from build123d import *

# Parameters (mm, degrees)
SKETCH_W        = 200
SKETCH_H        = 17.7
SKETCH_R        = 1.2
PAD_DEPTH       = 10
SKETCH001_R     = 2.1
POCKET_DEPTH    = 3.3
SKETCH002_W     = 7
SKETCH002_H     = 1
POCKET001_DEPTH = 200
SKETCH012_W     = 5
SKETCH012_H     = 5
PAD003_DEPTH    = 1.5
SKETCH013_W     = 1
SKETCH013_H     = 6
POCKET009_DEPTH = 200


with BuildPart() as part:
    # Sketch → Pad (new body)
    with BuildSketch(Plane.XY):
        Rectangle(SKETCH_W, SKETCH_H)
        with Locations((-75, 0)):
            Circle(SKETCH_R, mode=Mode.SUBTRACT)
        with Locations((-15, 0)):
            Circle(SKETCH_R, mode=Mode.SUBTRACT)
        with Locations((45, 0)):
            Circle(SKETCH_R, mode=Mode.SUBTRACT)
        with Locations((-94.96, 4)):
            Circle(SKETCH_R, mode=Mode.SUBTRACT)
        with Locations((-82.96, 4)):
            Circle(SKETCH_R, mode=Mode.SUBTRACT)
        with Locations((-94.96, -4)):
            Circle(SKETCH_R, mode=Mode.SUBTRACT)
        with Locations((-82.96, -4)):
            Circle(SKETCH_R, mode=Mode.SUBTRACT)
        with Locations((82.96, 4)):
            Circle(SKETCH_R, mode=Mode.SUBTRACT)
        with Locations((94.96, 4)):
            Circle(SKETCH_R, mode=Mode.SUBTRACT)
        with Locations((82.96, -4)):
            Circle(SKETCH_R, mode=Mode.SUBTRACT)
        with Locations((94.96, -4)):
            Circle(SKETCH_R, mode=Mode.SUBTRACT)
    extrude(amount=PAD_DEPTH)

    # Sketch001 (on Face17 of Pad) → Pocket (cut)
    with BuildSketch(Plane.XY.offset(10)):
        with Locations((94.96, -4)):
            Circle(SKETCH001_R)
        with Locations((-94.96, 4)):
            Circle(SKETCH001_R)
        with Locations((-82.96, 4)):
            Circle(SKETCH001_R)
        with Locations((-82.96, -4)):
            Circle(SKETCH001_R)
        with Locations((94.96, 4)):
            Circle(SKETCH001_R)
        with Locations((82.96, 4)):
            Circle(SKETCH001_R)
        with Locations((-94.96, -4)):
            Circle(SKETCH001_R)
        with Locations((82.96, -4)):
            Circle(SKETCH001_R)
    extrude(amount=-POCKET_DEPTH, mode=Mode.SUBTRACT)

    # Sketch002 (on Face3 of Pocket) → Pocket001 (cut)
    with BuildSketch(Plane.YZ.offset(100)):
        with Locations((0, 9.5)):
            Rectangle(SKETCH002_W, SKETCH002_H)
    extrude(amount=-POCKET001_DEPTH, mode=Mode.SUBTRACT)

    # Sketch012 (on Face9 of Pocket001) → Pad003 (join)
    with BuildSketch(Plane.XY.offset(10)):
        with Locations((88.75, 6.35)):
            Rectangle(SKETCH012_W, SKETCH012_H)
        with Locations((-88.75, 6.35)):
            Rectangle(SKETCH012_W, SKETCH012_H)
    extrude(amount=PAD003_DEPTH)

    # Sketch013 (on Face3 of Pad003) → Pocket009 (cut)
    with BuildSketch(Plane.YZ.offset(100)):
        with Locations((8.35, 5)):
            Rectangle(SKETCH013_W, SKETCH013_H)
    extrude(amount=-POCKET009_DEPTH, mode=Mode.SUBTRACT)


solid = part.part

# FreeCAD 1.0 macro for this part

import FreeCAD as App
import Part
import Sketcher
Q = App.Units.Quantity

doc = App.newDocument("Part")
body = doc.addObject("PartDesign::Body", "Body")

# Sketch on XY plane
sketch1 = body.newObject("Sketcher::SketchObject", "Sketch")
sketch1.AttachmentSupport = (doc.getObject("XY_Plane"), [""])
sketch1.MapMode = "FlatFace"
sketch1.addGeometry(Part.LineSegment(App.Vector(-100, 8.8, 0), App.Vector(-100, -8.8, 0)), False)
sketch1.addGeometry(Part.LineSegment(App.Vector(-100, -8.8, 0), App.Vector(100, -8.8, 0)), False)
sketch1.addGeometry(Part.LineSegment(App.Vector(100, -8.8, 0), App.Vector(100, 8.8, 0)), False)
sketch1.addGeometry(Part.LineSegment(App.Vector(100, 8.8, 0), App.Vector(-100, 8.8, 0)), False)
sketch1.addGeometry(Part.Circle(App.Vector(-95, -4, 0), App.Vector(0, 0, 1), 1.2), False)
sketch1.addGeometry(Part.Circle(App.Vector(-83, -4, 0), App.Vector(0, 0, 1), 1.2), False)
sketch1.addGeometry(Part.Circle(App.Vector(83, -4, 0), App.Vector(0, 0, 1), 1.2), False)
sketch1.addGeometry(Part.Circle(App.Vector(95, -4, 0), App.Vector(0, 0, 1), 1.2), False)
sketch1.addGeometry(Part.Circle(App.Vector(-75, 0, 0), App.Vector(0, 0, 1), 1.2), False)
sketch1.addGeometry(Part.Circle(App.Vector(-15, 0, 0), App.Vector(0, 0, 1), 1.2), False)
sketch1.addGeometry(Part.Circle(App.Vector(-95, 4, 0), App.Vector(0, 0, 1), 1.2), False)
sketch1.addGeometry(Part.Circle(App.Vector(-83, 4, 0), App.Vector(0, 0, 1), 1.2), False)
sketch1.addGeometry(Part.Circle(App.Vector(45, 0, 0), App.Vector(0, 0, 1), 1.2), False)
sketch1.addGeometry(Part.Circle(App.Vector(83, 4, 0), App.Vector(0, 0, 1), 1.2), False)
sketch1.addGeometry(Part.Circle(App.Vector(95, 4, 0), App.Vector(0, 0, 1), 1.2), False)
sketch1.addConstraint(Sketcher.Constraint("Coincident", 0, 2, 1, 1))
sketch1.addConstraint(Sketcher.Constraint("Coincident", 1, 2, 2, 1))
sketch1.addConstraint(Sketcher.Constraint("Coincident", 2, 2, 3, 1))
sketch1.addConstraint(Sketcher.Constraint("Coincident", 3, 2, 0, 1))
sketch1.addConstraint(Sketcher.Constraint("Vertical", 0))
sketch1.addConstraint(Sketcher.Constraint("Horizontal", 1))
sketch1.addConstraint(Sketcher.Constraint("Vertical", 2))
sketch1.addConstraint(Sketcher.Constraint("Horizontal", 3))
sketch1.addConstraint(Sketcher.Constraint("Equal", 4, 5))
sketch1.addConstraint(Sketcher.Constraint("Equal", 5, 6))
sketch1.addConstraint(Sketcher.Constraint("Equal", 6, 7))
sketch1.addConstraint(Sketcher.Constraint("Equal", 7, 8))
sketch1.addConstraint(Sketcher.Constraint("Equal", 8, 9))
sketch1.addConstraint(Sketcher.Constraint("Equal", 9, 10))
sketch1.addConstraint(Sketcher.Constraint("Equal", 10, 11))
sketch1.addConstraint(Sketcher.Constraint("Equal", 11, 12))
sketch1.addConstraint(Sketcher.Constraint("Equal", 12, 13))
sketch1.addConstraint(Sketcher.Constraint("Equal", 13, 14))
sketch1.addConstraint(Sketcher.Constraint("Symmetric", 7, 3, 10, 3, -1, 1))
sketch1.addConstraint(Sketcher.Constraint("Symmetric", 6, 3, 11, 3, -1, 1))
sketch1.addConstraint(Sketcher.Constraint("Symmetric", 5, 3, 13, 3, -1, 1))
sketch1.addConstraint(Sketcher.Constraint("Symmetric", 4, 3, 14, 3, -1, 1))
sketch1.addConstraint(Sketcher.Constraint("Symmetric", 0, 2, 2, 2, -1, 1))
sketch1.addConstraint(Sketcher.Constraint("Symmetric", 5, 3, 6, 3, -2))
sketch1.addConstraint(Sketcher.Constraint("Symmetric", 4, 3, 7, 3, -2))
sketch1.addConstraint(Sketcher.Constraint("PointOnObject", 8, 3, -1))
sketch1.addConstraint(Sketcher.Constraint("PointOnObject", 9, 3, -1))
sketch1.addConstraint(Sketcher.Constraint("PointOnObject", 12, 3, -1))
sketch1.addConstraint(Sketcher.Constraint("Horizontal", 4, 3, 5, 3))
sketch1.addConstraint(Sketcher.Constraint("Diameter", 4, Q("2.4 mm")))
sketch1.addConstraint(Sketcher.Constraint("DistanceX", 1, 1, 1, 2, Q("200 mm")))
sketch1.addConstraint(Sketcher.Constraint("DistanceY", 0, 2, 0, 1, Q("17.7 mm")))
sketch1.addConstraint(Sketcher.Constraint("DistanceY", 4, 3, -1, 1, Q("4 mm")))
sketch1.addConstraint(Sketcher.Constraint("DistanceX", 8, 3, -1, 1, Q("75 mm")))
sketch1.addConstraint(Sketcher.Constraint("DistanceX", 9, 3, -1, 1, Q("15 mm")))
sketch1.addConstraint(Sketcher.Constraint("DistanceX", -1, 1, 12, 3, Q("45 mm")))
sketch1.addConstraint(Sketcher.Constraint("DistanceX", 4, 3, 5, 3, Q("12 mm")))
sketch1.addConstraint(Sketcher.Constraint("DistanceX", 4, 3, -1, 1, Q("94.96 mm")))
pad1 = body.newObject("PartDesign::Pad", "Pad")
pad1.Profile = sketch1
pad1.Length = 10

# Sketch on XY plane
sketch2 = body.newObject("Sketcher::SketchObject", "Sketch001")
sketch2.AttachmentSupport = (doc.getObject("XY_Plane"), [""])
sketch2.MapMode = "FlatFace"
sketch2.AttachmentOffset = App.Placement(App.Vector(0, 0, 10), App.Rotation())
sketch2.addGeometry(Part.Circle(App.Vector(95, -4, 0), App.Vector(0, 0, 1), 2.1), False)
sketch2.addGeometry(Part.Circle(App.Vector(-95, 4, 0), App.Vector(0, 0, 1), 2.1), False)
sketch2.addGeometry(Part.Circle(App.Vector(-83, 4, 0), App.Vector(0, 0, 1), 2.1), False)
sketch2.addGeometry(Part.Circle(App.Vector(-83, -4, 0), App.Vector(0, 0, 1), 2.1), False)
sketch2.addGeometry(Part.Circle(App.Vector(95, 4, 0), App.Vector(0, 0, 1), 2.1), False)
sketch2.addGeometry(Part.Circle(App.Vector(83, 4, 0), App.Vector(0, 0, 1), 2.1), False)
sketch2.addGeometry(Part.Circle(App.Vector(-95, -4, 0), App.Vector(0, 0, 1), 2.1), False)
sketch2.addGeometry(Part.Circle(App.Vector(83, -4, 0), App.Vector(0, 0, 1), 2.1), False)
sketch2.addConstraint(Sketcher.Constraint("Equal", 0, 1))
sketch2.addConstraint(Sketcher.Constraint("Equal", 1, 2))
sketch2.addConstraint(Sketcher.Constraint("Equal", 2, 3))
sketch2.addConstraint(Sketcher.Constraint("Equal", 3, 4))
sketch2.addConstraint(Sketcher.Constraint("Equal", 4, 5))
sketch2.addConstraint(Sketcher.Constraint("Equal", 5, 6))
sketch2.addConstraint(Sketcher.Constraint("Equal", 6, 7))
sketch2.addConstraint(Sketcher.Constraint("Symmetric", 0, 3, 1, 3, -1, 1))
sketch2.addConstraint(Sketcher.Constraint("Symmetric", 3, 3, 5, 3, -1, 1))
sketch2.addConstraint(Sketcher.Constraint("Symmetric", 4, 3, 6, 3, -1, 1))
sketch2.addConstraint(Sketcher.Constraint("Symmetric", 2, 3, 7, 3, -1, 1))
sketch2.addConstraint(Sketcher.Constraint("Symmetric", 1, 3, 4, 3, -2))
sketch2.addConstraint(Sketcher.Constraint("Symmetric", 2, 3, 5, 3, -2))
sketch2.addConstraint(Sketcher.Constraint("Horizontal", 1, 3, 2, 3))
sketch2.addConstraint(Sketcher.Constraint("Diameter", 0, Q("4.2 mm")))
sketch2.addConstraint(Sketcher.Constraint("DistanceY", 0, 3, -1, 1, Q("4 mm")))
sketch2.addConstraint(Sketcher.Constraint("DistanceX", 1, 3, 2, 3, Q("12 mm")))
sketch2.addConstraint(Sketcher.Constraint("DistanceX", -1, 1, 0, 3, Q("94.96 mm")))
pocket1 = body.newObject("PartDesign::Pocket", "Pocket")
pocket1.Profile = sketch2
pocket1.Length = 3.3

# Sketch on YZ plane
sketch3 = body.newObject("Sketcher::SketchObject", "Sketch002")
sketch3.AttachmentSupport = (doc.getObject("YZ_Plane"), [""])
sketch3.MapMode = "FlatFace"
sketch3.AttachmentOffset = App.Placement(App.Vector(0, 0, 100), App.Rotation())
sketch3.addGeometry(Part.LineSegment(App.Vector(-3.5, 10, 0), App.Vector(-3.5, 9, 0)), False)
sketch3.addGeometry(Part.LineSegment(App.Vector(-3.5, 9, 0), App.Vector(3.5, 9, 0)), False)
sketch3.addGeometry(Part.LineSegment(App.Vector(3.5, 9, 0), App.Vector(3.5, 10, 0)), False)
sketch3.addGeometry(Part.LineSegment(App.Vector(3.5, 10, 0), App.Vector(-3.5, 10, 0)), False)
sketch3.addConstraint(Sketcher.Constraint("Coincident", 0, 2, 1, 1))
sketch3.addConstraint(Sketcher.Constraint("Coincident", 1, 2, 2, 1))
sketch3.addConstraint(Sketcher.Constraint("Coincident", 2, 2, 3, 1))
sketch3.addConstraint(Sketcher.Constraint("Coincident", 3, 2, 0, 1))
sketch3.addConstraint(Sketcher.Constraint("Vertical", 0))
sketch3.addConstraint(Sketcher.Constraint("Horizontal", 1))
sketch3.addConstraint(Sketcher.Constraint("Vertical", 2))
sketch3.addConstraint(Sketcher.Constraint("Horizontal", 3))
sketch3.addConstraint(Sketcher.Constraint("DistanceX", 1, 1, 1, 2, Q("7 mm")))
sketch3.addConstraint(Sketcher.Constraint("DistanceY", 0, 2, 0, 1, Q("1 mm")))
sketch3.addConstraint(Sketcher.Constraint("DistanceY", -1, 1, 0, 2, Q("9 mm")))
sketch3.addConstraint(Sketcher.Constraint("DistanceX", 0, 2, -1, 1, Q("3.5 mm")))
pocket2 = body.newObject("PartDesign::Pocket", "Pocket001")
pocket2.Profile = sketch3
pocket2.Length = 200

# Sketch on XY plane
sketch4 = body.newObject("Sketcher::SketchObject", "Sketch003")
sketch4.AttachmentSupport = (doc.getObject("XY_Plane"), [""])
sketch4.MapMode = "FlatFace"
sketch4.AttachmentOffset = App.Placement(App.Vector(0, 0, 10), App.Rotation())
sketch4.addGeometry(Part.LineSegment(App.Vector(86, 9, 0), App.Vector(86, 4, 0)), False)
sketch4.addGeometry(Part.LineSegment(App.Vector(86, 4, 0), App.Vector(91, 4, 0)), False)
sketch4.addGeometry(Part.LineSegment(App.Vector(91, 4, 0), App.Vector(91, 9, 0)), False)
sketch4.addGeometry(Part.LineSegment(App.Vector(91, 9, 0), App.Vector(86, 9, 0)), False)
sketch4.addGeometry(Part.LineSegment(App.Vector(-91, 9, 0), App.Vector(-91, 4, 0)), False)
sketch4.addGeometry(Part.LineSegment(App.Vector(-91, 4, 0), App.Vector(-86, 4, 0)), False)
sketch4.addGeometry(Part.LineSegment(App.Vector(-86, 4, 0), App.Vector(-86, 9, 0)), False)
sketch4.addGeometry(Part.LineSegment(App.Vector(-86, 9, 0), App.Vector(-91, 9, 0)), False)
sketch4.addConstraint(Sketcher.Constraint("Coincident", 0, 2, 1, 1))
sketch4.addConstraint(Sketcher.Constraint("Coincident", 1, 2, 2, 1))
sketch4.addConstraint(Sketcher.Constraint("Coincident", 2, 2, 3, 1))
sketch4.addConstraint(Sketcher.Constraint("Coincident", 3, 2, 0, 1))
sketch4.addConstraint(Sketcher.Constraint("Coincident", 4, 2, 5, 1))
sketch4.addConstraint(Sketcher.Constraint("Coincident", 5, 2, 6, 1))
sketch4.addConstraint(Sketcher.Constraint("Coincident", 6, 2, 7, 1))
sketch4.addConstraint(Sketcher.Constraint("Coincident", 7, 2, 4, 1))
sketch4.addConstraint(Sketcher.Constraint("Vertical", 0))
sketch4.addConstraint(Sketcher.Constraint("Horizontal", 1))
sketch4.addConstraint(Sketcher.Constraint("Vertical", 2))
sketch4.addConstraint(Sketcher.Constraint("Horizontal", 3))
sketch4.addConstraint(Sketcher.Constraint("Vertical", 4))
sketch4.addConstraint(Sketcher.Constraint("Horizontal", 5))
sketch4.addConstraint(Sketcher.Constraint("Vertical", 6))
sketch4.addConstraint(Sketcher.Constraint("Horizontal", 7))
sketch4.addConstraint(Sketcher.Constraint("Symmetric", 1, 2, 4, 2, -2))
sketch4.addConstraint(Sketcher.Constraint("Symmetric", 3, 2, 6, 2, -2))
sketch4.addConstraint(Sketcher.Constraint("Equal", 7, 0))
sketch4.addConstraint(Sketcher.Constraint("DistanceX", 1, 1, 1, 2, Q("5 mm")))
sketch4.addConstraint(Sketcher.Constraint("DistanceX", 4, 2, 0, 2, Q("177.5 mm")))
sketch4.addConstraint(Sketcher.Constraint("DistanceY", -1, 1, 0, 2, Q("3.85 mm")))
pad2 = body.newObject("PartDesign::Pad", "Pad001")
pad2.Profile = sketch4
pad2.Length = 1.5

# Sketch on YZ plane
sketch5 = body.newObject("Sketcher::SketchObject", "Sketch004")
sketch5.AttachmentSupport = (doc.getObject("YZ_Plane"), [""])
sketch5.MapMode = "FlatFace"
sketch5.AttachmentOffset = App.Placement(App.Vector(0, 0, 100), App.Rotation())
sketch5.addGeometry(Part.LineSegment(App.Vector(7.8, 8, 0), App.Vector(7.8, 2, 0)), False)
sketch5.addGeometry(Part.LineSegment(App.Vector(7.8, 2, 0), App.Vector(8.8, 2, 0)), False)
sketch5.addGeometry(Part.LineSegment(App.Vector(8.8, 2, 0), App.Vector(8.8, 8, 0)), False)
sketch5.addGeometry(Part.LineSegment(App.Vector(8.8, 8, 0), App.Vector(7.8, 8, 0)), False)
sketch5.addConstraint(Sketcher.Constraint("Coincident", 0, 2, 1, 1))
sketch5.addConstraint(Sketcher.Constraint("Coincident", 1, 2, 2, 1))
sketch5.addConstraint(Sketcher.Constraint("Coincident", 2, 2, 3, 1))
sketch5.addConstraint(Sketcher.Constraint("Coincident", 3, 2, 0, 1))
sketch5.addConstraint(Sketcher.Constraint("Vertical", 0))
sketch5.addConstraint(Sketcher.Constraint("Horizontal", 1))
sketch5.addConstraint(Sketcher.Constraint("Vertical", 2))
sketch5.addConstraint(Sketcher.Constraint("Horizontal", 3))
sketch5.addConstraint(Sketcher.Constraint("DistanceX", 1, 1, 1, 2, Q("1 mm")))
sketch5.addConstraint(Sketcher.Constraint("DistanceY", 0, 2, 0, 1, Q("6 mm")))
sketch5.addConstraint(Sketcher.Constraint("DistanceY", -1, 1, 0, 2, Q("2 mm")))
sketch5.addConstraint(Sketcher.Constraint("DistanceX", -1, 1, 0, 2, Q("7.85 mm")))
pocket3 = body.newObject("PartDesign::Pocket", "Pocket002")
pocket3.Profile = sketch5
pocket3.Length = 200

doc.recompute()
